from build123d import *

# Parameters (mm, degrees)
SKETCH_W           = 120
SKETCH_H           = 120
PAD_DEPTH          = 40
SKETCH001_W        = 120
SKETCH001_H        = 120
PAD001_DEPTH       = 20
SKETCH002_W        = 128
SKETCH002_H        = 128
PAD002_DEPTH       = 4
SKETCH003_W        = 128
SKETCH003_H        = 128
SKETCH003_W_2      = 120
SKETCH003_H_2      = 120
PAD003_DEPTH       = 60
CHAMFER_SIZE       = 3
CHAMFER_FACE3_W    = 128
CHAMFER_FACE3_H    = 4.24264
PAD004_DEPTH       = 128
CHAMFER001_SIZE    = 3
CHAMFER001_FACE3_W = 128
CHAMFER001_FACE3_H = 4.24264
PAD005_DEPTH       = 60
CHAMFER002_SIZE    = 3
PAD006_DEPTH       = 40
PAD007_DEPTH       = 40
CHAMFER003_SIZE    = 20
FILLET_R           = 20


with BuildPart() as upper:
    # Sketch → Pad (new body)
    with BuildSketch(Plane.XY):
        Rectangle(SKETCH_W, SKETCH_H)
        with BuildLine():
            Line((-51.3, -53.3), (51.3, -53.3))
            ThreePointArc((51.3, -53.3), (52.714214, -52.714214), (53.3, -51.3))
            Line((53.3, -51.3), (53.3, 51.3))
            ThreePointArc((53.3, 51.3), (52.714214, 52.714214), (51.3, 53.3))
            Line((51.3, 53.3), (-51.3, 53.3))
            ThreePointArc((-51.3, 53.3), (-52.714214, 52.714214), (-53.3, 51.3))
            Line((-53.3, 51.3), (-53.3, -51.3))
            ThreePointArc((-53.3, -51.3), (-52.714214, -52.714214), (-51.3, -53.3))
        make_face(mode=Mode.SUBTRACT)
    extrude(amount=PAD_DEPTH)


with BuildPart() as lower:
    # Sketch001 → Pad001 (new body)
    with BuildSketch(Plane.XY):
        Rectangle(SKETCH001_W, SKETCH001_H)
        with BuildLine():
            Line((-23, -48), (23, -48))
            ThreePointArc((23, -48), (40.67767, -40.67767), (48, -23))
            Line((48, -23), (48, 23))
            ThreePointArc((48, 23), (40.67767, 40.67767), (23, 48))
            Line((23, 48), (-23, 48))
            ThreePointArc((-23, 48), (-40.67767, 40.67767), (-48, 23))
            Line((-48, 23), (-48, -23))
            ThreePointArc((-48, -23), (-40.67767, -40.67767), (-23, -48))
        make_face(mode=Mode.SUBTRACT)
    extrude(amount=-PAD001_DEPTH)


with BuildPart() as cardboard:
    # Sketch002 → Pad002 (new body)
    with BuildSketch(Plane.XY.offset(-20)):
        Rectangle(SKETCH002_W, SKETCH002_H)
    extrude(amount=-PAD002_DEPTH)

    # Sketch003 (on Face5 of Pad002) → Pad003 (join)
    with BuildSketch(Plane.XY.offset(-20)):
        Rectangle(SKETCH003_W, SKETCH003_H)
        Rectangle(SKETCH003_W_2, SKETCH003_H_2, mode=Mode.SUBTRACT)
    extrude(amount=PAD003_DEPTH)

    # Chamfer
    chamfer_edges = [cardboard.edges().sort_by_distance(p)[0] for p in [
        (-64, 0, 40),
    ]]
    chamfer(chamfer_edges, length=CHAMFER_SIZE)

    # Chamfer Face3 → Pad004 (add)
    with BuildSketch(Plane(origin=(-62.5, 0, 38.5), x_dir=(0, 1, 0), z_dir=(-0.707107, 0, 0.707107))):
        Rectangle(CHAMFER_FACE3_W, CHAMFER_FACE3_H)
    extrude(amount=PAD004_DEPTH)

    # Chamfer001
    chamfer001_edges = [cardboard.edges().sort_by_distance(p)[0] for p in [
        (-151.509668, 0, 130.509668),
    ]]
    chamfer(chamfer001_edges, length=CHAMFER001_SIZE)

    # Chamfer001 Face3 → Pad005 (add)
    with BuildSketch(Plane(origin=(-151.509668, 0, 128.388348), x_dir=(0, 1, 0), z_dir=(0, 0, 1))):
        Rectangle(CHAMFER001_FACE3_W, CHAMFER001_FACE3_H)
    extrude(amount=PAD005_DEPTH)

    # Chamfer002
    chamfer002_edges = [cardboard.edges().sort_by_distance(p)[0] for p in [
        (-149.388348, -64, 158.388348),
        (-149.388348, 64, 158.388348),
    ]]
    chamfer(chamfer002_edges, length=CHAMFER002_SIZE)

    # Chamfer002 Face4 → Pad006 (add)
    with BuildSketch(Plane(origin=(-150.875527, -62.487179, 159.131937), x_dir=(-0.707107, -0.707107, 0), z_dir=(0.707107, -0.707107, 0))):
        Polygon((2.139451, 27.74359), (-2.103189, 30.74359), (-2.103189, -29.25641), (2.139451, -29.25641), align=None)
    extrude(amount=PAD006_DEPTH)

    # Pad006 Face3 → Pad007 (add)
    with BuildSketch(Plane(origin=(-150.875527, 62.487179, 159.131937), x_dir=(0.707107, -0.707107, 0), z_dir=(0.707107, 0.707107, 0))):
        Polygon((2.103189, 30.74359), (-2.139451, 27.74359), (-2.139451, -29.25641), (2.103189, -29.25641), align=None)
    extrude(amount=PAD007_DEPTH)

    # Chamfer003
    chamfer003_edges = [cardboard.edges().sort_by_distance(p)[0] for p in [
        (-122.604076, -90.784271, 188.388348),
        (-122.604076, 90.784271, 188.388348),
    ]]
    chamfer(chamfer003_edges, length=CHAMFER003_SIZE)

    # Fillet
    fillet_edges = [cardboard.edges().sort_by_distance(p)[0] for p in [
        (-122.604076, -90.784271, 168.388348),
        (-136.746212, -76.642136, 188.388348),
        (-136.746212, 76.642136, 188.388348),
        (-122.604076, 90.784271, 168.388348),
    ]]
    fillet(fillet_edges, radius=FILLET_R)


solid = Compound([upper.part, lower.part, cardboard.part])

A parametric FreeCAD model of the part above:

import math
import FreeCAD as App
import Part
import Sketcher
from FreeCAD import Vector


def edges_at(feature, points):
    """Names of the edges that pass closest to the given points."""
    edges = feature.Shape.Edges
    near = lambda p: min(range(len(edges)), key=lambda i: edges[i].distToShape(Part.Vertex(*p))[0])
    return sorted({f"Edge{near(p) + 1}" for p in points})


def add_polygon(sketch, points):
    """Adds a closed chain of lines whose ends are joined by coincident constraints."""
    first, n = sketch.GeometryCount, len(points)
    for a, b in zip(points, points[1:] + points[:1]):
        sketch.addGeometry(Part.LineSegment(App.Vector(*a, 0), App.Vector(*b, 0)), False)
    for i in range(n):
        sketch.addConstraint(Sketcher.Constraint("Coincident", first + i, 2, first + (i + 1) % n, 1))

doc = App.newDocument("Part")
body = doc.addObject("PartDesign::Body", "Body")

sketch1 = body.newObject("Sketcher::SketchObject", "Sketch")
sketch1.AttachmentSupport = (doc.getObject("XY_Plane"), [""])
sketch1.MapMode = "FlatFace"
add_polygon(sketch1, [(-60, 60), (-60, -60), (60, -60), (60, 60)])
sketch1.addGeometry(Part.LineSegment(Vector(51.3, -53.3, 0), Vector(-51.3, -53.3, 0)), False)
sketch1.addGeometry(Part.ArcOfCircle(Part.Circle(Vector(-51.3, -51.3, 0), Vector(0, 0, 1), 2), math.radians(180), math.radians(270)), False)
sketch1.addGeometry(Part.LineSegment(Vector(-53.3, -51.3, 0), Vector(-53.3, 51.3, 0)), False)
sketch1.addGeometry(Part.ArcOfCircle(Part.Circle(Vector(-51.3, 51.3, 0), Vector(0, 0, 1), 2), math.radians(90), math.radians(180)), False)
sketch1.addGeometry(Part.LineSegment(Vector(-51.3, 53.3, 0), Vector(51.3, 53.3, 0)), False)
sketch1.addGeometry(Part.ArcOfCircle(Part.Circle(Vector(51.3, 51.3, 0), Vector(0, 0, 1), 2), math.radians(0), math.radians(90)), False)
sketch1.addGeometry(Part.LineSegment(Vector(53.3, 51.3, 0), Vector(53.3, -51.3, 0)), False)
sketch1.addGeometry(Part.ArcOfCircle(Part.Circle(Vector(51.3, -51.3, 0), Vector(0, 0, 1), 2), math.radians(-90), math.radians(0)), False)
sketch1.addConstraint([
    Sketcher.Constraint("Tangent", 4, 2, 5, 2),
    Sketcher.Constraint("Tangent", 5, 1, 6, 1),
    Sketcher.Constraint("Tangent", 6, 2, 7, 2),
    Sketcher.Constraint("Tangent", 7, 1, 8, 1),
    Sketcher.Constraint("Tangent", 8, 2, 9, 2),
    Sketcher.Constraint("Tangent", 9, 1, 10, 1),
    Sketcher.Constraint("Tangent", 10, 2, 11, 2),
    Sketcher.Constraint("Tangent", 11, 1, 4, 1),
    Sketcher.Constraint("Vertical", 0),
    Sketcher.Constraint("Horizontal", 1),
    Sketcher.Constraint("Vertical", 2),
    Sketcher.Constraint("Horizontal", 3),
    Sketcher.Constraint("Horizontal", 4),
    Sketcher.Constraint("Vertical", 6),
    Sketcher.Constraint("Horizontal", 8),
    Sketcher.Constraint("Vertical", 10),
    Sketcher.Constraint("Equal", 5, 7),
    Sketcher.Constraint("Equal", 7, 9),
    Sketcher.Constraint("Equal", 9, 11),
    Sketcher.Constraint("Symmetric", 5, 3, 9, 3, -1, 1),
    Sketcher.Constraint("Symmetric", 0, 2, 2, 2, -1, 1),
    Sketcher.Constraint("Equal", 3, 0),
    Sketcher.Constraint("Equal", 8, 6),
    Sketcher.Constraint("Radius", 5, 1.999999),
    Sketcher.Constraint("DistanceX", 1, 1, 1, 2, 120.0),
    Sketcher.Constraint("DistanceX", 4, 2, 4, 1, 102.6),
])
pad1 = body.newObject("PartDesign::Pad", "Pad")
pad1.Profile = sketch1
pad1.Length = 40
body2 = doc.addObject("PartDesign::Body", "Body001")

sketch2 = body2.newObject("Sketcher::SketchObject", "Sketch001")
sketch2.AttachmentSupport = (doc.getObject("XY_Plane001"), [""])
sketch2.MapMode = "FlatFace"
add_polygon(sketch2, [(-60, 60), (-60, -60), (60, -60), (60, 60)])
sketch2.addGeometry(Part.LineSegment(Vector(23, -48, 0), Vector(-23, -48, 0)), False)
sketch2.addGeometry(Part.ArcOfCircle(Part.Circle(Vector(-23, -23, 0), Vector(0, 0, 1), 25), math.radians(180), math.radians(270)), False)
sketch2.addGeometry(Part.LineSegment(Vector(-48, -23, 0), Vector(-48, 23, 0)), False)
sketch2.addGeometry(Part.ArcOfCircle(Part.Circle(Vector(-23, 23, 0), Vector(0, 0, 1), 25), math.radians(90), math.radians(180)), False)
sketch2.addGeometry(Part.LineSegment(Vector(-23, 48, 0), Vector(23, 48, 0)), False)
sketch2.addGeometry(Part.ArcOfCircle(Part.Circle(Vector(23, 23, 0), Vector(0, 0, 1), 25), math.radians(0), math.radians(90)), False)
sketch2.addGeometry(Part.LineSegment(Vector(48, 23, 0), Vector(48, -23, 0)), False)
sketch2.addGeometry(Part.ArcOfCircle(Part.Circle(Vector(23, -23, 0), Vector(0, 0, 1), 25), math.radians(-90), math.radians(0)), False)
sketch2.addConstraint([
    Sketcher.Constraint("Tangent", 4, 2, 5, 2),
    Sketcher.Constraint("Tangent", 5, 1, 6, 1),
    Sketcher.Constraint("Tangent", 6, 2, 7, 2),
    Sketcher.Constraint("Tangent", 7, 1, 8, 1),
    Sketcher.Constraint("Tangent", 8, 2, 9, 2),
    Sketcher.Constraint("Tangent", 9, 1, 10, 1),
    Sketcher.Constraint("Tangent", 10, 2, 11, 2),
    Sketcher.Constraint("Tangent", 11, 1, 4, 1),
    Sketcher.Constraint("Vertical", 0),
    Sketcher.Constraint("Horizontal", 1),
    Sketcher.Constraint("Vertical", 2),
    Sketcher.Constraint("Horizontal", 3),
    Sketcher.Constraint("Horizontal", 4),
    Sketcher.Constraint("Vertical", 6),
    Sketcher.Constraint("Horizontal", 8),
    Sketcher.Constraint("Vertical", 10),
    Sketcher.Constraint("Equal", 5, 7),
    Sketcher.Constraint("Equal", 7, 9),
    Sketcher.Constraint("Equal", 9, 11),
    Sketcher.Constraint("Symmetric", 5, 3, 9, 3, -1, 1),
    Sketcher.Constraint("Symmetric", 0, 2, 2, 2, -1, 1),
    Sketcher.Constraint("Equal", 3, 0),
    Sketcher.Constraint("Equal", 8, 6),
    Sketcher.Constraint("Radius", 5, 24.999998),
    Sketcher.Constraint("DistanceX", 1, 1, 1, 2, 120.0),
    Sketcher.Constraint("DistanceX", 4, 2, 4, 1, 46.0),
])
pad2 = body2.newObject("PartDesign::Pad", "Pad001")
pad2.Profile = sketch2
pad2.Length = 20
pad2.Reversed = True
body3 = doc.addObject("PartDesign::Body", "Body002")

sketch3 = body3.newObject("Sketcher::SketchObject", "Sketch002")
sketch3.AttachmentSupport = (doc.getObject("XY_Plane002"), [""])
sketch3.MapMode = "FlatFace"
sketch3.AttachmentOffset = App.Placement(Vector(0, 0, -20), App.Rotation())
add_polygon(sketch3, [(-64, 64), (-64, -64), (64, -64), (64, 64)])
sketch3.addConstraint([
    Sketcher.Constraint("Vertical", 0),
    Sketcher.Constraint("Horizontal", 1),
    Sketcher.Constraint("Vertical", 2),
    Sketcher.Constraint("Horizontal", 3),
    Sketcher.Constraint("Symmetric", 0, 2, 2, 2, -1, 1),
    Sketcher.Constraint("Equal", 3, 0),
    Sketcher.Constraint("DistanceX", 1, 1, 1, 2, 128.0),
])
pad3 = body3.newObject("PartDesign::Pad", "Pad002")
pad3.Profile = sketch3
pad3.Length = 4
pad3.Reversed = True

sketch4 = body3.newObject("Sketcher::SketchObject", "Sketch003")
sketch4.AttachmentSupport = (doc.getObject("XY_Plane002"), [""])
sketch4.MapMode = "FlatFace"
sketch4.AttachmentOffset = App.Placement(Vector(0, 0, -20), App.Rotation())
add_polygon(sketch4, [(-64, 64), (-64, -64), (64, -64), (64, 64)])
add_polygon(sketch4, [(60, -60), (-60, -60), (-60, 60), (60, 60)])
sketch4.addConstraint([
    Sketcher.Constraint("Vertical", 0),
    Sketcher.Constraint("Horizontal", 1),
    Sketcher.Constraint("Vertical", 2),
    Sketcher.Constraint("Horizontal", 3),
    Sketcher.Constraint("Horizontal", 4),
    Sketcher.Constraint("Vertical", 5),
    Sketcher.Constraint("Horizontal", 6),
    Sketcher.Constraint("Vertical", 7),
    Sketcher.Constraint("Symmetric", 0, 2, 2, 2, -1, 1),
    Sketcher.Constraint("Symmetric", 4, 2, 6, 2, -1, 1),
    Sketcher.Constraint("Equal", 3, 0),
    Sketcher.Constraint("Equal", 6, 5),
    Sketcher.Constraint("DistanceX", 1, 1, 1, 2, 128.0),
    Sketcher.Constraint("DistanceX", 4, 2, 4, 1, 120.0),
])
pad4 = body3.newObject("PartDesign::Pad", "Pad003")
pad4.Profile = sketch4
pad4.Length = 60
doc.recompute()

chamfer = body3.newObject("PartDesign::Chamfer", "Chamfer")
chamfer.Base = (pad4, edges_at(pad4, [(-64, 0, 40)]))
chamfer.Size = 3

sketch5 = body3.newObject("Sketcher::SketchObject", "Sketch004")
sketch5.Placement = App.Placement(Vector(-62.5, 0, 38.5), App.Rotation(Vector(0, 1, 0), Vector(-0.707106781, 0, -0.707106781), Vector(-0.707106781, 0, 0.707106781), "ZXY"))
add_polygon(sketch5, [(-64, 2.1), (-64, -2.1), (64, -2.1), (64, 2.1)])
sketch5.addConstraint([
    Sketcher.Constraint("Vertical", 0),
    Sketcher.Constraint("Horizontal", 1),
    Sketcher.Constraint("Vertical", 2),
    Sketcher.Constraint("Horizontal", 3),
    Sketcher.Constraint("Symmetric", 0, 2, 2, 2, -1, 1),
    Sketcher.Constraint("DistanceX", 1, 1, 1, 2, 128.0),
    Sketcher.Constraint("DistanceY", 0, 2, 0, 1, 4.24264),
])
pad5 = body3.newObject("PartDesign::Pad", "Pad004")
pad5.Profile = sketch5
pad5.Length = 128
doc.recompute()

chamfer2 = body3.newObject("PartDesign::Chamfer", "Chamfer001")
chamfer2.Base = (pad5, edges_at(pad5, [(-151.51, 0, 130.51)]))
chamfer2.Size = 3

sketch6 = body3.newObject("Sketcher::SketchObject", "Sketch005")
sketch6.AttachmentSupport = (doc.getObject("XY_Plane002"), [""])
sketch6.MapMode = "FlatFace"
sketch6.AttachmentOffset = App.Placement(Vector(0, 0, 128.388348), App.Rotation())
add_polygon(sketch6, [(-153.6, -64), (-149.4, -64), (-149.4, 64), (-153.6, 64)])
sketch6.addConstraint([
    Sketcher.Constraint("Horizontal", 0),
    Sketcher.Constraint("Vertical", 1),
    Sketcher.Constraint("Horizontal", 2),
    Sketcher.Constraint("Vertical", 3),
    Sketcher.Constraint("DistanceY", 1, 1, 1, 2, 128.0),
    Sketcher.Constraint("DistanceY", 0, 2, -1, 1, 64.0),
    Sketcher.Constraint("DistanceX", 0, 1, 0, 2, 4.24264),
    Sketcher.Constraint("DistanceX", 0, 2, -1, 1, 149.388348),
])
pad6 = body3.newObject("PartDesign::Pad", "Pad005")
pad6.Profile = sketch6
pad6.Length = 60
doc.recompute()

chamfer3 = body3.newObject("PartDesign::Chamfer", "Chamfer002")
chamfer3.Base = (pad6, edges_at(pad6, [(-149.388, -64, 158.388), (-149.388, 64, 158.388)]))
chamfer3.Size = 3

sketch7 = body3.newObject("Sketcher::SketchObject", "Sketch006")
sketch7.Placement = App.Placement(Vector(-150.875527, -62.487179, 159.131937), App.Rotation(Vector(-0.707106781, -0.707106781, 0), Vector(0, 0, -0.999999999), Vector(0.707106781, -0.707106781, 0), "ZXY"))
add_polygon(sketch7, [(2.1, 27.7), (-2.1, 30.7), (-2.1, -29.3), (2.1, -29.3)])
sketch7.addConstraint([
    Sketcher.Constraint("Vertical", 1),
    Sketcher.Constraint("Horizontal", 2),
    Sketcher.Constraint("Vertical", 3),
    Sketcher.Constraint("DistanceY", 1, 2, 1, 1, 60.0),
    Sketcher.Constraint("DistanceY", 3, 1, 3, 2, 57.0),
    Sketcher.Constraint("DistanceX", 2, 1, 2, 2, 4.24264),
    Sketcher.Constraint("DistanceX", 0, 2, -1, 1, 2.103189),
    Sketcher.Constraint("DistanceY", -1, 1, 0, 2, 30.74359),
])
pad7 = body3.newObject("PartDesign::Pad", "Pad006")
pad7.Profile = sketch7
pad7.Length = 40

sketch8 = body3.newObject("Sketcher::SketchObject", "Sketch007")
sketch8.Placement = App.Placement(Vector(-150.875527, 62.487179, 159.131937), App.Rotation(Vector(0.707106781, -0.707106781, 0), Vector(0, 0, -0.999999999), Vector(0.707106781, 0.707106781, 0), "ZXY"))
add_polygon(sketch8, [(2.1, 30.7), (-2.1, 27.7), (-2.1, -29.3), (2.1, -29.3)])
sketch8.addConstraint([
    Sketcher.Constraint("Vertical", 1),
    Sketcher.Constraint("Horizontal", 2),
    Sketcher.Constraint("Vertical", 3),
    Sketcher.Constraint("DistanceY", 1, 2, 1, 1, 57.0),
    Sketcher.Constraint("DistanceY", 3, 1, 3, 2, 60.0),
    Sketcher.Constraint("DistanceX", 2, 1, 2, 2, 4.24264),
    Sketcher.Constraint("DistanceX", 0, 2, -1, 1, 2.139451),
    Sketcher.Constraint("DistanceY", -1, 1, 0, 2, 27.74359),
])
pad8 = body3.newObject("PartDesign::Pad", "Pad007")
pad8.Profile = sketch8
pad8.Length = 40
doc.recompute()

chamfer4 = body3.newObject("PartDesign::Chamfer", "Chamfer003")
chamfer4.Base = (pad8, edges_at(pad8, [(-122.604, -90.784, 188.388), (-122.604, 90.784, 188.388)]))
chamfer4.Size = 20
doc.recompute()

fillet = body3.newObject("PartDesign::Fillet", "Fillet")
fillet.Base = (chamfer4, edges_at(chamfer4, [
    (-122.604, -90.784, 168.388),
    (-136.746, -76.642, 188.388),
    (-136.746, 76.642, 188.388),
    (-122.604, 90.784, 168.388),
]))
fillet.Radius = 20

doc.recompute()
